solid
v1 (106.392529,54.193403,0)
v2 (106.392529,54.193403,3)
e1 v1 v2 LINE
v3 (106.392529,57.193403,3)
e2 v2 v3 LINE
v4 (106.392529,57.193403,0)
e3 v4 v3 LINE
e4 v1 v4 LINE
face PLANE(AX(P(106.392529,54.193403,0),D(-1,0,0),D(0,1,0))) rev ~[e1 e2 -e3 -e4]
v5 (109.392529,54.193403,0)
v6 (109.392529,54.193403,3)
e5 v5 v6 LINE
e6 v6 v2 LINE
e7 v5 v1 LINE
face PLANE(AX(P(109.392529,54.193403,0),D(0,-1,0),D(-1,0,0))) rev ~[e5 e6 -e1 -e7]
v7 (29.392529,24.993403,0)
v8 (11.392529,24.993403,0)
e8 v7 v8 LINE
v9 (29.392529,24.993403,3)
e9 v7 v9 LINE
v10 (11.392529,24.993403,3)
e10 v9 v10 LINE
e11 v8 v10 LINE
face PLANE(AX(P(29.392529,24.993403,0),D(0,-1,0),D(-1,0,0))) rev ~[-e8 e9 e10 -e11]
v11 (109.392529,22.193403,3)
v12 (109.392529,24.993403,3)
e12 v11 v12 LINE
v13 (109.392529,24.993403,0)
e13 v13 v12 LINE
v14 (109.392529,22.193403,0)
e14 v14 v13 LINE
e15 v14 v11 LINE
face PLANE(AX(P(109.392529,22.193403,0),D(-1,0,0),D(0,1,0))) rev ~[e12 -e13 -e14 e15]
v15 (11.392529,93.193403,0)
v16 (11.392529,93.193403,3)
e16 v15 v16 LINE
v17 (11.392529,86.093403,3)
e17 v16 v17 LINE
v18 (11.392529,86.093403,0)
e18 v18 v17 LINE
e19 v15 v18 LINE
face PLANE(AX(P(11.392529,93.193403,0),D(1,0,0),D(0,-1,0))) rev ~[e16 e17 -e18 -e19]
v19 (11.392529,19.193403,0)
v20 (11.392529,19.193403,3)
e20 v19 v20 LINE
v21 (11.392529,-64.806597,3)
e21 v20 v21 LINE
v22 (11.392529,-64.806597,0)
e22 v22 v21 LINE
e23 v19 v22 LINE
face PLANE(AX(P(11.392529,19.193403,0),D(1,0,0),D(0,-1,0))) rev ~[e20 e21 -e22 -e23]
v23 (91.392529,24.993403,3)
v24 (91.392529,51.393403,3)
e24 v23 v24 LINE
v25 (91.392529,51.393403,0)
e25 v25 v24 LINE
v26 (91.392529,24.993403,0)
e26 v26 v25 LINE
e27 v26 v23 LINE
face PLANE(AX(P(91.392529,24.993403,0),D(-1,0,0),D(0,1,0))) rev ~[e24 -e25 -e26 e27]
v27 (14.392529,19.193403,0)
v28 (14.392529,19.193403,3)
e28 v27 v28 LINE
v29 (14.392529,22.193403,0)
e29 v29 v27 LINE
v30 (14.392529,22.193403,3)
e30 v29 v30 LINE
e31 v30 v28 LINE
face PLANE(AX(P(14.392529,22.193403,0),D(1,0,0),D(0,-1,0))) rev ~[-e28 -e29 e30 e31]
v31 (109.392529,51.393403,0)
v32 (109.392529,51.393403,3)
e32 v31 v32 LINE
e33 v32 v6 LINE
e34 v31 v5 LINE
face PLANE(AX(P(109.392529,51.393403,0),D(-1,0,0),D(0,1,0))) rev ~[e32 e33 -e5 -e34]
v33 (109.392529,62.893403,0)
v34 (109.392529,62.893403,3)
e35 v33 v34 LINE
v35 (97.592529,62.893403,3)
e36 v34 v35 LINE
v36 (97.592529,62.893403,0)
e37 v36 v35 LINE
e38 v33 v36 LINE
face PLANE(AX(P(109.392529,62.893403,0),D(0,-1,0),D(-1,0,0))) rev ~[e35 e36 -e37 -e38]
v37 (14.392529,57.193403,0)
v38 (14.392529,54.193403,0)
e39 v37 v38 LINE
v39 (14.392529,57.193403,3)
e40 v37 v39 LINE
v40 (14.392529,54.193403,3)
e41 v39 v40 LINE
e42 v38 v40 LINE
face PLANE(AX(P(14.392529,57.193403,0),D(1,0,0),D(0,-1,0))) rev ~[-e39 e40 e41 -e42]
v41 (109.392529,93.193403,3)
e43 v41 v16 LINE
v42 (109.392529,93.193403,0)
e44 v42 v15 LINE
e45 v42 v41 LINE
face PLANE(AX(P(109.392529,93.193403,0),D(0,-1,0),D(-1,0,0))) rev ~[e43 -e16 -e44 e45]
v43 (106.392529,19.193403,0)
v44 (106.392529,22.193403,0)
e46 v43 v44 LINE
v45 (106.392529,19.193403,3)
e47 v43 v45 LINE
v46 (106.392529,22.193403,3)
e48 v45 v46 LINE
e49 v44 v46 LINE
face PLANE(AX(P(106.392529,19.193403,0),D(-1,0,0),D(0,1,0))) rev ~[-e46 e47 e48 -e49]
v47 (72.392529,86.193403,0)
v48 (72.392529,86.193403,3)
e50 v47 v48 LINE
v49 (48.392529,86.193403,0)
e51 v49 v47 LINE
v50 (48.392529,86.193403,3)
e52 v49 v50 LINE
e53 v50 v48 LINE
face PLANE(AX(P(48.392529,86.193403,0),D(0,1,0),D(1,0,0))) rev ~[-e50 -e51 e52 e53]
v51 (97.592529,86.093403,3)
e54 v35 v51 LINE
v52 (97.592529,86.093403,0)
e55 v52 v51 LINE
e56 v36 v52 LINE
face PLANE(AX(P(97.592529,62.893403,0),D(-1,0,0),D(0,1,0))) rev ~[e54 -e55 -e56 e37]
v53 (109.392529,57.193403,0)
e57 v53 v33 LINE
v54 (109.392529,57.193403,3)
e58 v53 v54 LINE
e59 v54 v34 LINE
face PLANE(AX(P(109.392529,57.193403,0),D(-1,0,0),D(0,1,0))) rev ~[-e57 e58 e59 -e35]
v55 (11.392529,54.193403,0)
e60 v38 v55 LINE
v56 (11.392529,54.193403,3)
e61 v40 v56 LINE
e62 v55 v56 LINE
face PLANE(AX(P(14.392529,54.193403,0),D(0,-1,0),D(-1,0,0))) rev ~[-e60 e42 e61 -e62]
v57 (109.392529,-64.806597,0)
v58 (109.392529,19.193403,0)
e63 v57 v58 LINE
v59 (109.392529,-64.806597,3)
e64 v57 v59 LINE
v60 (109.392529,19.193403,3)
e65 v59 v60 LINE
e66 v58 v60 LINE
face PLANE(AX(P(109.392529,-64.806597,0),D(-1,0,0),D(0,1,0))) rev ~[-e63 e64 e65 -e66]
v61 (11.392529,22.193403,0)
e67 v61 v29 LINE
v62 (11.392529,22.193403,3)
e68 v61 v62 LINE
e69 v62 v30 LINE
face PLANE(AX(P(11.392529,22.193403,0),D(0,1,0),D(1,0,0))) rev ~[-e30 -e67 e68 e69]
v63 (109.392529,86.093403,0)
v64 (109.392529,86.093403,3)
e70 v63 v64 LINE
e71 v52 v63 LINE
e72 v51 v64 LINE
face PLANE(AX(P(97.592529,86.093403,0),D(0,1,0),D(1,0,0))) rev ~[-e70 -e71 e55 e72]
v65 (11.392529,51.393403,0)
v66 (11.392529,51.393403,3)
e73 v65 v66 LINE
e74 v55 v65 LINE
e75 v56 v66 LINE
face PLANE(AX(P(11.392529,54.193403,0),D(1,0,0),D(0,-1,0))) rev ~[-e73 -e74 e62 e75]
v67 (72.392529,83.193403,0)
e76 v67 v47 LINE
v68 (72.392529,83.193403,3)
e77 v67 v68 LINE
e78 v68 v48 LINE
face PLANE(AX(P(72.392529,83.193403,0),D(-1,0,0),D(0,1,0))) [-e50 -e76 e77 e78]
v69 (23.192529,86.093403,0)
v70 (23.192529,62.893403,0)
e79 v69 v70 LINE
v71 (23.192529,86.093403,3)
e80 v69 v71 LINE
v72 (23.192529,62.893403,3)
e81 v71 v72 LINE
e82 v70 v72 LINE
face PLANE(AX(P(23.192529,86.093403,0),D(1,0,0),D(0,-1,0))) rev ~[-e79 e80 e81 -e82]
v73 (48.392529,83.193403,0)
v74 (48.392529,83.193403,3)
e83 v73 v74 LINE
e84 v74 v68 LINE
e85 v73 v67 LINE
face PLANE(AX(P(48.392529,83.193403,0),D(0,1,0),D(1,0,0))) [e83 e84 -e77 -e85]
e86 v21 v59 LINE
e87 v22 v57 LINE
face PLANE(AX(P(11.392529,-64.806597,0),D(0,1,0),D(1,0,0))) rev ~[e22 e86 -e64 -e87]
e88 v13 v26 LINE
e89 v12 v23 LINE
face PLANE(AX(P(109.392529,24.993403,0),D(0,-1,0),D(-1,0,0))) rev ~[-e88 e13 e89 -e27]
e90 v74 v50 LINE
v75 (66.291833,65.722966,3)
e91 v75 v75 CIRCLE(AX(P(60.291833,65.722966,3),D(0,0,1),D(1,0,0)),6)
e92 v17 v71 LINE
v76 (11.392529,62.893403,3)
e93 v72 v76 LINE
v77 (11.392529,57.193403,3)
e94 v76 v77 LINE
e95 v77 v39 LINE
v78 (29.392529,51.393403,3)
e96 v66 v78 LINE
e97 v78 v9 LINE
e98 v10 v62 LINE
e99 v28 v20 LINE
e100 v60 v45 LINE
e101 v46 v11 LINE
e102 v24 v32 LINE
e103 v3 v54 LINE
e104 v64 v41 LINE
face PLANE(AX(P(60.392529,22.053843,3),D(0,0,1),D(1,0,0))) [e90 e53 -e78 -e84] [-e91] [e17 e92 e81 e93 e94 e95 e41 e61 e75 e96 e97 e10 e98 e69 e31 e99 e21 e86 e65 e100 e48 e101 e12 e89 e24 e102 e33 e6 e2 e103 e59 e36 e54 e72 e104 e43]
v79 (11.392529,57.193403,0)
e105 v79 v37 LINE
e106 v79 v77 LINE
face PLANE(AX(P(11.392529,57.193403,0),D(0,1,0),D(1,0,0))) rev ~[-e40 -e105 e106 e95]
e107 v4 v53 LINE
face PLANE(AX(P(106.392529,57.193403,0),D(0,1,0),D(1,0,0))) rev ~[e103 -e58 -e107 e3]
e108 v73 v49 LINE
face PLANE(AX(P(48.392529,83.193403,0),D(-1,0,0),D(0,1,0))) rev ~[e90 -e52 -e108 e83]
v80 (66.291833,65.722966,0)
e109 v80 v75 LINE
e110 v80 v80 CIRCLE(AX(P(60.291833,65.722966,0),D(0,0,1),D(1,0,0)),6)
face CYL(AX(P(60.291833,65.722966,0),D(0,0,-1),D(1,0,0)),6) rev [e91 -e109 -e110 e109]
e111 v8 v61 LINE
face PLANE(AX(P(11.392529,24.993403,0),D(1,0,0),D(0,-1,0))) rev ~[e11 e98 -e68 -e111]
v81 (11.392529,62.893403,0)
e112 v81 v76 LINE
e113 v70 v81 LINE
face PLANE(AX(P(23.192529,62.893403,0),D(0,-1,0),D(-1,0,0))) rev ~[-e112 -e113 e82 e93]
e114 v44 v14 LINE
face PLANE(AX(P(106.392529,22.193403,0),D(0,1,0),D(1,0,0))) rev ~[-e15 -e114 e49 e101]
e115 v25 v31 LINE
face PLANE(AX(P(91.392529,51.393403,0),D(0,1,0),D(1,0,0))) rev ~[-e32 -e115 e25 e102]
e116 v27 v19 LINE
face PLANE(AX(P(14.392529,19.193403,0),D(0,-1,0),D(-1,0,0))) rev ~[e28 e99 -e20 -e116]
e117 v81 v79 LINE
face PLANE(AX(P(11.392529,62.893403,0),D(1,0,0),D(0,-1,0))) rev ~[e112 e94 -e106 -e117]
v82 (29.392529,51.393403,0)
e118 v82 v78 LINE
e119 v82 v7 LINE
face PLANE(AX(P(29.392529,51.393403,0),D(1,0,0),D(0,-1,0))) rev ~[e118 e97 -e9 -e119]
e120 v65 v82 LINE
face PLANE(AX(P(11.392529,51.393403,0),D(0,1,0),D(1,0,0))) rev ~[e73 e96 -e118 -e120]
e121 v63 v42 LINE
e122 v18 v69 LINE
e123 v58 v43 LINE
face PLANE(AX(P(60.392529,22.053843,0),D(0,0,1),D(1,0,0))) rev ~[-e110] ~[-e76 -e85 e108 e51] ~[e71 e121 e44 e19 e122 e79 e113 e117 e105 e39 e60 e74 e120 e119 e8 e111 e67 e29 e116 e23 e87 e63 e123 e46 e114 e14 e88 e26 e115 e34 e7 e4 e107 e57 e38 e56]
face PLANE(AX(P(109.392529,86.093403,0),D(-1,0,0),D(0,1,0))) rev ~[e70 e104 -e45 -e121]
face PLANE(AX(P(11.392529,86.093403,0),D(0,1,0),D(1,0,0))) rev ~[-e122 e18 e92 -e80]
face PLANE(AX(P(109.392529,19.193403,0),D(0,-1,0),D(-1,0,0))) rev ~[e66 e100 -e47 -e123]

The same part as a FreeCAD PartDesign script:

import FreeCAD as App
import Part
import Sketcher
from FreeCAD import Vector


def add_polygon(sketch, points):
    """Adds a closed chain of lines whose ends are joined by coincident constraints."""
    first, n = sketch.GeometryCount, len(points)
    for a, b in zip(points, points[1:] + points[:1]):
        sketch.addGeometry(Part.LineSegment(App.Vector(*a, 0), App.Vector(*b, 0)), False)
    for i in range(n):
        sketch.addConstraint(Sketcher.Constraint("Coincident", first + i, 2, first + (i + 1) % n, 1))

doc = App.newDocument("Part")
body = doc.addObject("PartDesign::Body", "Body")

# Sketch on XY plane
sketch1 = doc.addObject("Sketcher::SketchObject", "Sketch")
body.addObject(sketch1)
sketch1.AttachmentSupport = (doc.XY_Plane, [""])
sketch1.MapMode = "FlatFace"
add_polygon(sketch1, [(11.4, 93.2), (11.4, 86.1), (23.2, 86.1), (23.2, 62.9), (11.4, 62.9), (11.4, 57.2), (14.4, 57.2), (14.4, 54.2), (11.4, 54.2), (11.4, 51.4), (29.4, 51.4), (29.4, 25), (11.4, 25), (11.4, 22.2), (14.4, 22.2), (14.4, 19.2), (11.4, 19.2), (11.4, -64.8), (109.4, -64.8), (109.4, 19.2), (106.4, 19.2), (106.4, 22.2), (109.4, 22.2), (109.4, 25), (91.4, 25), (91.4, 51.4), (109.4, 51.4), (109.4, 54.2), (106.4, 54.2), (106.4, 57.2), (109.4, 57.2), (109.4, 62.9), (97.6, 62.9), (97.6, 86.1), (109.4, 86.1), (109.4, 93.2)])  # lines 0-35
sketch1.addGeometry(Part.Circle(Vector(60.3, 65.7, 0), Vector(0, 0, 1), 6), False)  # 36
add_polygon(sketch1, [(72.4, 83.2), (48.4, 83.2), (48.4, 86.2), (72.4, 86.2)])  # lines 37-40
sketch1.addConstraint(Sketcher.Constraint("Vertical", 0))
sketch1.addConstraint(Sketcher.Constraint("Horizontal", 1))
sketch1.addConstraint(Sketcher.Constraint("Vertical", 2))
sketch1.addConstraint(Sketcher.Constraint("Horizontal", 3))
sketch1.addConstraint(Sketcher.Constraint("Vertical", 4))
sketch1.addConstraint(Sketcher.Constraint("Horizontal", 5))
sketch1.addConstraint(Sketcher.Constraint("Vertical", 6))
sketch1.addConstraint(Sketcher.Constraint("Horizontal", 7))
sketch1.addConstraint(Sketcher.Constraint("Vertical", 8))
sketch1.addConstraint(Sketcher.Constraint("Horizontal", 9))
sketch1.addConstraint(Sketcher.Constraint("Vertical", 10))
sketch1.addConstraint(Sketcher.Constraint("Horizontal", 11))
sketch1.addConstraint(Sketcher.Constraint("Vertical", 12))
sketch1.addConstraint(Sketcher.Constraint("Horizontal", 13))
sketch1.addConstraint(Sketcher.Constraint("Vertical", 14))
sketch1.addConstraint(Sketcher.Constraint("Horizontal", 15))
sketch1.addConstraint(Sketcher.Constraint("Vertical", 16))
sketch1.addConstraint(Sketcher.Constraint("Horizontal", 17))
sketch1.addConstraint(Sketcher.Constraint("Vertical", 18))
sketch1.addConstraint(Sketcher.Constraint("Horizontal", 19))
sketch1.addConstraint(Sketcher.Constraint("Vertical", 20))
sketch1.addConstraint(Sketcher.Constraint("Horizontal", 21))
sketch1.addConstraint(Sketcher.Constraint("Vertical", 22))
sketch1.addConstraint(Sketcher.Constraint("Horizontal", 23))
sketch1.addConstraint(Sketcher.Constraint("Vertical", 24))
sketch1.addConstraint(Sketcher.Constraint("Horizontal", 25))
sketch1.addConstraint(Sketcher.Constraint("Vertical", 26))
sketch1.addConstraint(Sketcher.Constraint("Horizontal", 27))
sketch1.addConstraint(Sketcher.Constraint("Vertical", 28))
sketch1.addConstraint(Sketcher.Constraint("Horizontal", 29))
sketch1.addConstraint(Sketcher.Constraint("Vertical", 30))
sketch1.addConstraint(Sketcher.Constraint("Horizontal", 31))
sketch1.addConstraint(Sketcher.Constraint("Vertical", 32))
sketch1.addConstraint(Sketcher.Constraint("Horizontal", 33))
sketch1.addConstraint(Sketcher.Constraint("Vertical", 34))
sketch1.addConstraint(Sketcher.Constraint("Horizontal", 35))
sketch1.addConstraint(Sketcher.Constraint("Horizontal", 37))
sketch1.addConstraint(Sketcher.Constraint("Vertical", 38))
sketch1.addConstraint(Sketcher.Constraint("Horizontal", 39))
sketch1.addConstraint(Sketcher.Constraint("Vertical", 40))
sketch1.addConstraint(Sketcher.Constraint("Horizontal", 15, 2, 18, 2))
sketch1.addConstraint(Sketcher.Constraint("Horizontal", 13, 2, 20, 2))
sketch1.addConstraint(Sketcher.Constraint("Horizontal", 11, 2, 22, 2))
sketch1.addConstraint(Sketcher.Constraint("Horizontal", 9, 2, 24, 2))
sketch1.addConstraint(Sketcher.Constraint("Horizontal", 7, 2, 26, 2))
sketch1.addConstraint(Sketcher.Constraint("Horizontal", 5, 2, 28, 2))
sketch1.addConstraint(Sketcher.Constraint("Horizontal", 3, 2, 30, 2))
sketch1.addConstraint(Sketcher.Constraint("Horizontal", 1, 2, 32, 2))
sketch1.addConstraint(Sketcher.Constraint("Vertical", 0, 2, 3, 2))
sketch1.addConstraint(Sketcher.Constraint("Vertical", 4, 2, 7, 2))
sketch1.addConstraint(Sketcher.Constraint("Vertical", 8, 2, 11, 2))
sketch1.addConstraint(Sketcher.Constraint("Vertical", 6, 2, 13, 2))
sketch1.addConstraint(Sketcher.Constraint("Vertical", 12, 2, 15, 2))
sketch1.addConstraint(Sketcher.Constraint("Vertical", 18, 2, 21, 2))
sketch1.addConstraint(Sketcher.Constraint("Vertical", 22, 2, 25, 2))
sketch1.addConstraint(Sketcher.Constraint("Vertical", 20, 2, 27, 2))
sketch1.addConstraint(Sketcher.Constraint("Vertical", 26, 2, 29, 2))
sketch1.addConstraint(Sketcher.Constraint("Vertical", 30, 2, 33, 2))
sketch1.addConstraint(Sketcher.Constraint("Equal", 15, 19))
sketch1.addConstraint(Sketcher.Constraint("Equal", 11, 23))
sketch1.addConstraint(Sketcher.Constraint("Equal", 3, 31))
sketch1.addConstraint(Sketcher.Constraint("Equal", 29, 6))
sketch1.addConstraint(Sketcher.Constraint("Equal", 8, 12))
sketch1.addConstraint(Sketcher.Constraint("Equal", 6, 14))
sketch1.addConstraint(Sketcher.Constraint("Equal", 28, 38))
sketch1.addConstraint(Sketcher.Constraint("Diameter", 36, 12.0))
sketch1.addConstraint(Sketcher.Constraint("DistanceX", 5, 1, 5, 2, 3.0))
sketch1.addConstraint(Sketcher.Constraint("DistanceX", 9, 1, 9, 2, 18.0))
sketch1.addConstraint(Sketcher.Constraint("DistanceX", 17, 1, 17, 2, 98.0))
sketch1.addConstraint(Sketcher.Constraint("DistanceX", 37, 2, 37, 1, 24.0))
sketch1.addConstraint(Sketcher.Constraint("DistanceY", 16, 2, 16, 1, 84.0))
sketch1.addConstraint(Sketcher.Constraint("DistanceX", 1, 1, 1, 2, 11.8))
sketch1.addConstraint(Sketcher.Constraint("DistanceY", 0, 2, 0, 1, 7.1))
sketch1.addConstraint(Sketcher.Constraint("DistanceY", 2, 2, 2, 1, 23.2))
sketch1.addConstraint(Sketcher.Constraint("DistanceY", 4, 2, 4, 1, 5.7))
sketch1.addConstraint(Sketcher.Constraint("DistanceY", 8, 2, 8, 1, 2.8))
sketch1.addConstraint(Sketcher.Constraint("DistanceY", 10, 2, 10, 1, 26.4))
sketch1.addConstraint(Sketcher.Constraint("DistanceX", 9, 2, 37, 2, 19.0))
sketch1.addConstraint(Sketcher.Constraint("DistanceY", 37, 2, 1, 2, 2.9))
sketch1.addConstraint(Sketcher.Constraint("DistanceX", -1, 1, 0, 2, 11.392529))
sketch1.addConstraint(Sketcher.Constraint("DistanceX", -1, 1, 36, 3, 60.291833))
sketch1.addConstraint(Sketcher.Constraint("DistanceY", -1, 1, 36, 3, 65.722966))
sketch1.addConstraint(Sketcher.Constraint("DistanceY", -1, 1, 0, 2, 86.093403))
pad1 = doc.addObject("PartDesign::Pad", "Pad")
body.addObject(pad1)
pad1.Profile = sketch1
pad1.Length = 3

doc.recompute()
